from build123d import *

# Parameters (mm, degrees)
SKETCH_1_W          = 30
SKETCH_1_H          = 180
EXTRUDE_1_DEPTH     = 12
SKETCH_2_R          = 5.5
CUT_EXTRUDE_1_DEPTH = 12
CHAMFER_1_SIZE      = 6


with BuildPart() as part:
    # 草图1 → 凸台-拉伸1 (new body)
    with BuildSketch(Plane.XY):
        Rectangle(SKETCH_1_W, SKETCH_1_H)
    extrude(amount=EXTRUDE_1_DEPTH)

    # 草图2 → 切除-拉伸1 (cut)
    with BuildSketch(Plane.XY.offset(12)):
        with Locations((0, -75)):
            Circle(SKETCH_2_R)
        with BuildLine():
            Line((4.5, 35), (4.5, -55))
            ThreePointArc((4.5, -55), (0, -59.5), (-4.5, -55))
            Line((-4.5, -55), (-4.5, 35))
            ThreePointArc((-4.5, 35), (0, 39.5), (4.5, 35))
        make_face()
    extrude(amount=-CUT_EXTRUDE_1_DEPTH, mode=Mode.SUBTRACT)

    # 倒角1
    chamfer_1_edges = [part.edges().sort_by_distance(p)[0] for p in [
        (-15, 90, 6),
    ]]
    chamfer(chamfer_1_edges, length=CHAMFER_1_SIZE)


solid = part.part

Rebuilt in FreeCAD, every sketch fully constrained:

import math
import FreeCAD as App
import Part
import Sketcher
from FreeCAD import Vector
Q = App.Units.Quantity


def edges_at(feature, points):
    """Names of the edges that pass closest to the given points."""
    edges = feature.Shape.Edges
    near = lambda p: min(range(len(edges)), key=lambda i: edges[i].distToShape(Part.Vertex(*p))[0])
    return sorted({f"Edge{near(p) + 1}" for p in points})

doc = App.newDocument("Part")
body = doc.addObject("PartDesign::Body", "Body")

sketch1 = body.newObject("Sketcher::SketchObject", "Sketch")
sketch1.AttachmentSupport = (doc.getObject("XY_Plane"), [""])
sketch1.MapMode = "FlatFace"
sketch1.addGeometry([
    Part.LineSegment(Vector(-15, 90, 0), Vector(-15, -90, 0)),
    Part.LineSegment(Vector(-15, -90, 0), Vector(15, -90, 0)),
    Part.LineSegment(Vector(15, -90, 0), Vector(15, 90, 0)),
    Part.LineSegment(Vector(15, 90, 0), Vector(-15, 90, 0)),
], False)
sketch1.addConstraint([
    Sketcher.Constraint("Coincident", 0, 2, 1, 1),
    Sketcher.Constraint("Coincident", 1, 2, 2, 1),
    Sketcher.Constraint("Coincident", 2, 2, 3, 1),
    Sketcher.Constraint("Coincident", 3, 2, 0, 1),
    Sketcher.Constraint("Vertical", 0),
    Sketcher.Constraint("Horizontal", 1),
    Sketcher.Constraint("Vertical", 2),
    Sketcher.Constraint("Horizontal", 3),
    Sketcher.Constraint("Symmetric", 0, 2, 2, 2, -1, 1),
    Sketcher.Constraint("DistanceX", 1, 1, 1, 2, Q("30 mm")),
    Sketcher.Constraint("DistanceY", 0, 2, 0, 1, Q("180 mm")),
])
pad1 = body.newObject("PartDesign::Pad", "Pad")
pad1.Profile = sketch1
pad1.Length = 12

sketch2 = body.newObject("Sketcher::SketchObject", "Sketch001")
sketch2.AttachmentSupport = (doc.getObject("XY_Plane"), [""])
sketch2.MapMode = "FlatFace"
sketch2.AttachmentOffset = App.Placement(Vector(0, 0, 12), App.Rotation())
sketch2.addGeometry([
    Part.Circle(Vector(0, -75, 0), Vector(0, 0, 1), 5.5),
    Part.LineSegment(Vector(4.5, -55, 0), Vector(4.5, 35, 0)),
    Part.ArcOfCircle(Part.Circle(Vector(0, 35, 0), Vector(0, 0, 1), 4.5), math.radians(0), math.radians(180)),
    Part.LineSegment(Vector(-4.5, 35, 0), Vector(-4.5, -55, 0)),
    Part.ArcOfCircle(Part.Circle(Vector(0, -55, 0), Vector(0, 0, 1), 4.5), math.radians(180), math.radians(360)),
], False)
sketch2.addConstraint([
    Sketcher.Constraint("Tangent", 1, 2, 2, 1),
    Sketcher.Constraint("Tangent", 2, 2, 3, 1),
    Sketcher.Constraint("Tangent", 3, 2, 4, 1),
    Sketcher.Constraint("Tangent", 4, 2, 1, 1),
    Sketcher.Constraint("Vertical", 1),
    Sketcher.Constraint("Vertical", 3),
    Sketcher.Constraint("PointOnObject", 0, 3, -2),
    Sketcher.Constraint("PointOnObject", 2, 3, -2),
    Sketcher.Constraint("Diameter", 0, Q("11 mm")),
    Sketcher.Constraint("Radius", 2, Q("4.5 mm")),
    Sketcher.Constraint("DistanceY", 1, 1, 1, 2, Q("90 mm")),
    Sketcher.Constraint("DistanceY", 0, 3, -1, 1, Q("75 mm")),
    Sketcher.Constraint("DistanceY", -1, 1, 2, 3, Q("35 mm")),
])
pocket1 = body.newObject("PartDesign::Pocket", "Pocket")
pocket1.Profile = sketch2
pocket1.Length = 12
doc.recompute()

chamfer = body.newObject("PartDesign::Chamfer", "Chamfer")
chamfer.Base = (pocket1, edges_at(pocket1, [(-15, 90, 6)]))
chamfer.Size = 6

doc.recompute()
